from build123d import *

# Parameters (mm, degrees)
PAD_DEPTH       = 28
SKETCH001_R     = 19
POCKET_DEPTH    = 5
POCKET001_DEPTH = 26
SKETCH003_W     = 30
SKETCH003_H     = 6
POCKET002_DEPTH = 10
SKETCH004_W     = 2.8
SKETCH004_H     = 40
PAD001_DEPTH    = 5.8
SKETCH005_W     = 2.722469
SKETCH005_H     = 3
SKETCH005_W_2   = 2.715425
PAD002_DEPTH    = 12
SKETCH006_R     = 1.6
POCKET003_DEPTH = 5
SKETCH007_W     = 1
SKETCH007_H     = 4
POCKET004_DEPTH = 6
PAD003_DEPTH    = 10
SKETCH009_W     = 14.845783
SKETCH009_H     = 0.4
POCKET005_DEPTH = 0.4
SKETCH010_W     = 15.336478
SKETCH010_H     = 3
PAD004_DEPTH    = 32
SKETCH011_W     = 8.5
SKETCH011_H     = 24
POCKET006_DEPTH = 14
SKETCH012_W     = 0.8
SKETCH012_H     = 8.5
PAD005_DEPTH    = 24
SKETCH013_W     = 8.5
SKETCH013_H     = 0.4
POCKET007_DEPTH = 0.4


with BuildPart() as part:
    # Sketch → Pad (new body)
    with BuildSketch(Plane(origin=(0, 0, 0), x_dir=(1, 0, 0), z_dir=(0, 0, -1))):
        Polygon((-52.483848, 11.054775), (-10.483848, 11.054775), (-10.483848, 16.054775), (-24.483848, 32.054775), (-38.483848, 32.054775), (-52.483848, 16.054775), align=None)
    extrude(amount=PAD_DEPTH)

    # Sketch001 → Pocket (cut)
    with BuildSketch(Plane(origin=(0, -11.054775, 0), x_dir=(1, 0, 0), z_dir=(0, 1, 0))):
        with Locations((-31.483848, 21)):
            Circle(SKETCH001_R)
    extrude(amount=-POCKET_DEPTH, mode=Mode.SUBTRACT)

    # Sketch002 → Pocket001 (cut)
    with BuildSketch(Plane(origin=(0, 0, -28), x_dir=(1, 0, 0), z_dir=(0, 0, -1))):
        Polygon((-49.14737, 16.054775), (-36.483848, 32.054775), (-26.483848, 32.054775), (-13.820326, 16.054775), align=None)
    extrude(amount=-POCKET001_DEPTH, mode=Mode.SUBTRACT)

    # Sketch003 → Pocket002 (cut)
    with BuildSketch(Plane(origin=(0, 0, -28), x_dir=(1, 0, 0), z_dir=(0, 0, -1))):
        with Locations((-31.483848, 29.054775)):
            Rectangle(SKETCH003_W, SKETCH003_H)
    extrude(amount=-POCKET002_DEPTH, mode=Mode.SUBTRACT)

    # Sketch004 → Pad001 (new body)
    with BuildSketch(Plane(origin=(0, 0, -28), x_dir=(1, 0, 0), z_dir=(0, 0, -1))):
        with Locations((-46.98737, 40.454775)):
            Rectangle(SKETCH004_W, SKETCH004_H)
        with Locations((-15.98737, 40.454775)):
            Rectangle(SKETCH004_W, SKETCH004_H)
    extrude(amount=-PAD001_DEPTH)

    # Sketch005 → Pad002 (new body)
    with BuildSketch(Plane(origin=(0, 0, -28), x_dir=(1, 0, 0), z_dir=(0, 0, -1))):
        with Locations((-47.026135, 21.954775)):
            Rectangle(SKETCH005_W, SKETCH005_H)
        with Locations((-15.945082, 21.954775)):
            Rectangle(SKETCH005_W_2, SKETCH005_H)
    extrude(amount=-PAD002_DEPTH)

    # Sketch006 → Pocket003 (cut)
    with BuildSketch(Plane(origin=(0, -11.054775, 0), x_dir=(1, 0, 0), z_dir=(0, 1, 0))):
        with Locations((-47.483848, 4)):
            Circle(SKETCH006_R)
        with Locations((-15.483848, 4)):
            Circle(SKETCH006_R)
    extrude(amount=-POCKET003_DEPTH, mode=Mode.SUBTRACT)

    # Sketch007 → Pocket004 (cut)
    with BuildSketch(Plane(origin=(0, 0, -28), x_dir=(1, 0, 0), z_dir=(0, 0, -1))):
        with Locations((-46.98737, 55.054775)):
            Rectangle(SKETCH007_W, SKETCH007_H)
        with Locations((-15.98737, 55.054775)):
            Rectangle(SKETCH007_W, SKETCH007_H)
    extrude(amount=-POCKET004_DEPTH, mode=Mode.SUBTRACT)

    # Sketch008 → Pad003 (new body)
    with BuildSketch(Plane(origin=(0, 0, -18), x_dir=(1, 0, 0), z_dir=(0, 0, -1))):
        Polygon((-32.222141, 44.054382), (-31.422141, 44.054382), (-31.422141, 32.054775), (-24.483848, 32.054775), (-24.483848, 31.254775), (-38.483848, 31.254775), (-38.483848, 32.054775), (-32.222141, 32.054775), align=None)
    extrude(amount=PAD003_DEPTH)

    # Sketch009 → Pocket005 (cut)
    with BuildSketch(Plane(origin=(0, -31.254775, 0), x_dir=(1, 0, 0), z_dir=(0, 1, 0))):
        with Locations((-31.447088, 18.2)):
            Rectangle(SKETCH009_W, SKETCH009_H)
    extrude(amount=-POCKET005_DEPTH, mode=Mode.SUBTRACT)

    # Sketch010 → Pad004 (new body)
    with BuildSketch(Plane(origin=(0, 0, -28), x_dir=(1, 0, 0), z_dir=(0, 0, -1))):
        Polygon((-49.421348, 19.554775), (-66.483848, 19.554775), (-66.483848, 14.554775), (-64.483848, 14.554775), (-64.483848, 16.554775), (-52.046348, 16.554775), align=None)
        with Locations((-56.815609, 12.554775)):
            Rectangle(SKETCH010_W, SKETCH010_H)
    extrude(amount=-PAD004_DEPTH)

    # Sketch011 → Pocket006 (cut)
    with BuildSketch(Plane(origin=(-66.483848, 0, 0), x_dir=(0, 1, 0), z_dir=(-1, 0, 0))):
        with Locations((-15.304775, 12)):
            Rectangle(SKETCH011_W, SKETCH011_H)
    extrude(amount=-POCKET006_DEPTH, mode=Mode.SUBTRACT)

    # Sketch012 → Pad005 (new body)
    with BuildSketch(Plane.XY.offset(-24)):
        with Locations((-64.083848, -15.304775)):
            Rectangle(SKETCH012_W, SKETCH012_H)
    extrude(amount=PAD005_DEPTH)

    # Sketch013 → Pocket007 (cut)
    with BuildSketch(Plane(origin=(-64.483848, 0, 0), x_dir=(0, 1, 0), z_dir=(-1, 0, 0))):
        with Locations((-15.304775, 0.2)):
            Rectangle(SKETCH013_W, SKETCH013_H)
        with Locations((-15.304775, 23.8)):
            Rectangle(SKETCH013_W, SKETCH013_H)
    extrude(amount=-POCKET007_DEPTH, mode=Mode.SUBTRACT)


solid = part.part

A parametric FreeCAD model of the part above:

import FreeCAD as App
import Part
import Sketcher
Q = App.Units.Quantity

doc = App.newDocument("Part")
body = doc.addObject("PartDesign::Body", "Body")

# Sketch on XY plane
sketch1 = body.newObject("Sketcher::SketchObject", "Sketch")
sketch1.AttachmentSupport = (doc.getObject("XY_Plane"), [""])
sketch1.MapMode = "FlatFace"
sketch1.addGeometry(Part.LineSegment(App.Vector(-52, -11, 0), App.Vector(-10, -11, 0)), False)
sketch1.addGeometry(Part.LineSegment(App.Vector(-10, -11, 0), App.Vector(-10, -16, 0)), False)
sketch1.addGeometry(Part.LineSegment(App.Vector(-10, -16, 0), App.Vector(-24, -32, 0)), False)
sketch1.addGeometry(Part.LineSegment(App.Vector(-24, -32, 0), App.Vector(-38, -32, 0)), False)
sketch1.addGeometry(Part.LineSegment(App.Vector(-38, -32, 0), App.Vector(-52, -16, 0)), False)
sketch1.addGeometry(Part.LineSegment(App.Vector(-52, -16, 0), App.Vector(-52, -11, 0)), False)
sketch1.addConstraint(Sketcher.Constraint("Coincident", 0, 2, 1, 1))
sketch1.addConstraint(Sketcher.Constraint("Coincident", 1, 2, 2, 1))
sketch1.addConstraint(Sketcher.Constraint("Coincident", 2, 2, 3, 1))
sketch1.addConstraint(Sketcher.Constraint("Coincident", 3, 2, 4, 1))
sketch1.addConstraint(Sketcher.Constraint("Coincident", 4, 2, 5, 1))
sketch1.addConstraint(Sketcher.Constraint("Coincident", 5, 2, 0, 1))
sketch1.addConstraint(Sketcher.Constraint("Horizontal", 0))
sketch1.addConstraint(Sketcher.Constraint("Vertical", 1))
sketch1.addConstraint(Sketcher.Constraint("Horizontal", 3))
sketch1.addConstraint(Sketcher.Constraint("Vertical", 5))
sketch1.addConstraint(Sketcher.Constraint("Horizontal", 1, 2, 4, 2))
sketch1.addConstraint(Sketcher.Constraint("Equal", 2, 4))
sketch1.addConstraint(Sketcher.Constraint("DistanceX", 0, 1, 0, 2, Q("42 mm")))
sketch1.addConstraint(Sketcher.Constraint("DistanceX", 3, 2, 3, 1, Q("14 mm")))
sketch1.addConstraint(Sketcher.Constraint("DistanceY", 1, 2, 1, 1, Q("5 mm")))
sketch1.addConstraint(Sketcher.Constraint("DistanceY", 2, 2, 1, 2, Q("16 mm")))
sketch1.addConstraint(Sketcher.Constraint("DistanceX", 3, 2, -1, 1, Q("38.483848 mm")))
sketch1.addConstraint(Sketcher.Constraint("DistanceY", 0, 2, -1, 1, Q("11.054775 mm")))
pad1 = body.newObject("PartDesign::Pad", "Pad")
pad1.Profile = sketch1
pad1.Length = 28
pad1.Reversed = True

# Sketch on XZ plane
sketch2 = body.newObject("Sketcher::SketchObject", "Sketch001")
sketch2.AttachmentSupport = (doc.getObject("XZ_Plane"), [""])
sketch2.MapMode = "FlatFace"
sketch2.AttachmentOffset = App.Placement(App.Vector(0, 0, 11.054775), App.Rotation())
sketch2.addGeometry(Part.Circle(App.Vector(-31, -21, 0), App.Vector(0, 0, 1), 19), False)
sketch2.addConstraint(Sketcher.Constraint("Diameter", 0, Q("38 mm")))
sketch2.addConstraint(Sketcher.Constraint("DistanceY", 0, 3, -1, 1, Q("21 mm")))
sketch2.addConstraint(Sketcher.Constraint("DistanceX", 0, 3, -1, 1, Q("31.483848 mm")))
pocket1 = body.newObject("PartDesign::Pocket", "Pocket")
pocket1.Profile = sketch2
pocket1.Length = 5
pocket1.Reversed = True

# Sketch on XY plane
sketch3 = body.newObject("Sketcher::SketchObject", "Sketch002")
sketch3.AttachmentSupport = (doc.getObject("XY_Plane"), [""])
sketch3.MapMode = "FlatFace"
sketch3.AttachmentOffset = App.Placement(App.Vector(0, 0, -28), App.Rotation())
sketch3.addGeometry(Part.LineSegment(App.Vector(-36, -32, 0), App.Vector(-49, -16, 0)), False)
sketch3.addGeometry(Part.LineSegment(App.Vector(-49, -16, 0), App.Vector(-14, -16, 0)), False)
sketch3.addGeometry(Part.LineSegment(App.Vector(-14, -16, 0), App.Vector(-26, -32, 0)), False)
sketch3.addGeometry(Part.LineSegment(App.Vector(-26, -32, 0), App.Vector(-36, -32, 0)), False)
sketch3.addConstraint(Sketcher.Constraint("Coincident", 0, 2, 1, 1))
sketch3.addConstraint(Sketcher.Constraint("Coincident", 1, 2, 2, 1))
sketch3.addConstraint(Sketcher.Constraint("Coincident", 2, 2, 3, 1))
sketch3.addConstraint(Sketcher.Constraint("Coincident", 3, 2, 0, 1))
sketch3.addConstraint(Sketcher.Constraint("Horizontal", 1))
sketch3.addConstraint(Sketcher.Constraint("Horizontal", 3))
sketch3.addConstraint(Sketcher.Constraint("Equal", 0, 2))
sketch3.addConstraint(Sketcher.Constraint("DistanceX", 3, 2, 3, 1, Q("10 mm")))
sketch3.addConstraint(Sketcher.Constraint("DistanceY", 2, 2, 1, 2, Q("16 mm")))
sketch3.addConstraint(Sketcher.Constraint("Distance", 0, Q("20.405019 mm")))
sketch3.addConstraint(Sketcher.Constraint("DistanceX", 0, 2, -1, 1, Q("49.14737 mm")))
sketch3.addConstraint(Sketcher.Constraint("DistanceY", 0, 2, -1, 1, Q("16.054775 mm")))
pocket2 = body.newObject("PartDesign::Pocket", "Pocket001")
pocket2.Profile = sketch3
pocket2.Length = 26
pocket2.Reversed = True

# Sketch on XY plane
sketch4 = body.newObject("Sketcher::SketchObject", "Sketch003")
sketch4.AttachmentSupport = (doc.getObject("XY_Plane"), [""])
sketch4.MapMode = "FlatFace"
sketch4.AttachmentOffset = App.Placement(App.Vector(0, 0, -28), App.Rotation())
sketch4.addGeometry(Part.LineSegment(App.Vector(-46, -32, 0), App.Vector(-46, -26, 0)), False)
sketch4.addGeometry(Part.LineSegment(App.Vector(-46, -26, 0), App.Vector(-16, -26, 0)), False)
sketch4.addGeometry(Part.LineSegment(App.Vector(-16, -26, 0), App.Vector(-16, -32, 0)), False)
sketch4.addGeometry(Part.LineSegment(App.Vector(-16, -32, 0), App.Vector(-46, -32, 0)), False)
sketch4.addConstraint(Sketcher.Constraint("Coincident", 0, 2, 1, 1))
sketch4.addConstraint(Sketcher.Constraint("Coincident", 1, 2, 2, 1))
sketch4.addConstraint(Sketcher.Constraint("Coincident", 2, 2, 3, 1))
sketch4.addConstraint(Sketcher.Constraint("Coincident", 3, 2, 0, 1))
sketch4.addConstraint(Sketcher.Constraint("Vertical", 0))
sketch4.addConstraint(Sketcher.Constraint("Horizontal", 1))
sketch4.addConstraint(Sketcher.Constraint("Vertical", 2))
sketch4.addConstraint(Sketcher.Constraint("Horizontal", 3))
sketch4.addConstraint(Sketcher.Constraint("DistanceX", 1, 1, 1, 2, Q("30 mm")))
sketch4.addConstraint(Sketcher.Constraint("DistanceY", 0, 1, 0, 2, Q("6 mm")))
sketch4.addConstraint(Sketcher.Constraint("DistanceX", 0, 2, -1, 1, Q("46.483848 mm")))
sketch4.addConstraint(Sketcher.Constraint("DistanceY", 0, 2, -1, 1, Q("26.054775 mm")))
pocket3 = body.newObject("PartDesign::Pocket", "Pocket002")
pocket3.Profile = sketch4
pocket3.Length = 10
pocket3.Reversed = True

# Sketch on XY plane
sketch5 = body.newObject("Sketcher::SketchObject", "Sketch004")
sketch5.AttachmentSupport = (doc.getObject("XY_Plane"), [""])
sketch5.MapMode = "FlatFace"
sketch5.AttachmentOffset = App.Placement(App.Vector(0, 0, -28), App.Rotation())
sketch5.addGeometry(Part.LineSegment(App.Vector(-48.4, -60.5, 0), App.Vector(-48.4, -20.5, 0)), False)
sketch5.addGeometry(Part.LineSegment(App.Vector(-48.4, -20.5, 0), App.Vector(-45.6, -20.5, 0)), False)
sketch5.addGeometry(Part.LineSegment(App.Vector(-45.6, -20.5, 0), App.Vector(-45.6, -60.5, 0)), False)
sketch5.addGeometry(Part.LineSegment(App.Vector(-45.6, -60.5, 0), App.Vector(-48.4, -60.5, 0)), False)
sketch5.addGeometry(Part.LineSegment(App.Vector(-17.4, -60.5, 0), App.Vector(-17.4, -20.5, 0)), False)
sketch5.addGeometry(Part.LineSegment(App.Vector(-17.4, -20.5, 0), App.Vector(-14.6, -20.5, 0)), False)
sketch5.addGeometry(Part.LineSegment(App.Vector(-14.6, -20.5, 0), App.Vector(-14.6, -60.5, 0)), False)
sketch5.addGeometry(Part.LineSegment(App.Vector(-14.6, -60.5, 0), App.Vector(-17.4, -60.5, 0)), False)
sketch5.addConstraint(Sketcher.Constraint("Coincident", 0, 2, 1, 1))
sketch5.addConstraint(Sketcher.Constraint("Coincident", 1, 2, 2, 1))
sketch5.addConstraint(Sketcher.Constraint("Coincident", 2, 2, 3, 1))
sketch5.addConstraint(Sketcher.Constraint("Coincident", 3, 2, 0, 1))
sketch5.addConstraint(Sketcher.Constraint("Coincident", 4, 2, 5, 1))
sketch5.addConstraint(Sketcher.Constraint("Coincident", 5, 2, 6, 1))
sketch5.addConstraint(Sketcher.Constraint("Coincident", 6, 2, 7, 1))
sketch5.addConstraint(Sketcher.Constraint("Coincident", 7, 2, 4, 1))
sketch5.addConstraint(Sketcher.Constraint("Vertical", 0))
sketch5.addConstraint(Sketcher.Constraint("Horizontal", 1))
sketch5.addConstraint(Sketcher.Constraint("Vertical", 2))
sketch5.addConstraint(Sketcher.Constraint("Horizontal", 3))
sketch5.addConstraint(Sketcher.Constraint("Vertical", 4))
sketch5.addConstraint(Sketcher.Constraint("Horizontal", 5))
sketch5.addConstraint(Sketcher.Constraint("Vertical", 6))
sketch5.addConstraint(Sketcher.Constraint("Horizontal", 7))
sketch5.addConstraint(Sketcher.Constraint("Horizontal", 1, 2, 4, 2))
sketch5.addConstraint(Sketcher.Constraint("Horizontal", 3, 2, 6, 2))
sketch5.addConstraint(Sketcher.Constraint("Equal", 3, 5))
sketch5.addConstraint(Sketcher.Constraint("DistanceY", 0, 1, 0, 2, Q("40 mm")))
sketch5.addConstraint(Sketcher.Constraint("DistanceX", 1, 1, 1, 2, Q("2.8 mm")))
sketch5.addConstraint(Sketcher.Constraint("DistanceX", 0, 2, 4, 2, Q("31 mm")))
sketch5.addConstraint(Sketcher.Constraint("DistanceX", 0, 2, -1, 1, Q("48.38737 mm")))
sketch5.addConstraint(Sketcher.Constraint("DistanceY", 0, 2, -1, 1, Q("20.454775 mm")))
pad2 = body.newObject("PartDesign::Pad", "Pad001")
pad2.Profile = sketch5
pad2.Length = 5.8

# Sketch on XY plane
sketch6 = body.newObject("Sketcher::SketchObject", "Sketch005")
sketch6.AttachmentSupport = (doc.getObject("XY_Plane"), [""])
sketch6.MapMode = "FlatFace"
sketch6.AttachmentOffset = App.Placement(App.Vector(0, 0, -28), App.Rotation())
sketch6.addGeometry(Part.LineSegment(App.Vector(-48.4, -23.5, 0), App.Vector(-48.4, -20.5, 0)), False)
sketch6.addGeometry(Part.LineSegment(App.Vector(-48.4, -20.5, 0), App.Vector(-45.7, -20.5, 0)), False)
sketch6.addGeometry(Part.LineSegment(App.Vector(-45.7, -20.5, 0), App.Vector(-45.7, -23.5, 0)), False)
sketch6.addGeometry(Part.LineSegment(App.Vector(-45.7, -23.5, 0), App.Vector(-48.4, -23.5, 0)), False)
sketch6.addGeometry(Part.LineSegment(App.Vector(-17.3, -23.5, 0), App.Vector(-17.3, -20.5, 0)), False)
sketch6.addGeometry(Part.LineSegment(App.Vector(-17.3, -20.5, 0), App.Vector(-14.6, -20.5, 0)), False)
sketch6.addGeometry(Part.LineSegment(App.Vector(-14.6, -20.5, 0), App.Vector(-14.6, -23.5, 0)), False)
sketch6.addGeometry(Part.LineSegment(App.Vector(-14.6, -23.5, 0), App.Vector(-17.3, -23.5, 0)), False)
sketch6.addConstraint(Sketcher.Constraint("Coincident", 0, 2, 1, 1))
sketch6.addConstraint(Sketcher.Constraint("Coincident", 1, 2, 2, 1))
sketch6.addConstraint(Sketcher.Constraint("Coincident", 2, 2, 3, 1))
sketch6.addConstraint(Sketcher.Constraint("Coincident", 3, 2, 0, 1))
sketch6.addConstraint(Sketcher.Constraint("Coincident", 4, 2, 5, 1))
sketch6.addConstraint(Sketcher.Constraint("Coincident", 5, 2, 6, 1))
sketch6.addConstraint(Sketcher.Constraint("Coincident", 6, 2, 7, 1))
sketch6.addConstraint(Sketcher.Constraint("Coincident", 7, 2, 4, 1))
sketch6.addConstraint(Sketcher.Constraint("Vertical", 0))
sketch6.addConstraint(Sketcher.Constraint("Horizontal", 1))
sketch6.addConstraint(Sketcher.Constraint("Vertical", 2))
sketch6.addConstraint(Sketcher.Constraint("Horizontal", 3))
sketch6.addConstraint(Sketcher.Constraint("Vertical", 4))
sketch6.addConstraint(Sketcher.Constraint("Horizontal", 5))
sketch6.addConstraint(Sketcher.Constraint("Vertical", 6))
sketch6.addConstraint(Sketcher.Constraint("Horizontal", 7))
sketch6.addConstraint(Sketcher.Constraint("Horizontal", 1, 2, 4, 2))
sketch6.addConstraint(Sketcher.Constraint("Horizontal", 3, 2, 6, 2))
sketch6.addConstraint(Sketcher.Constraint("DistanceY", 0, 1, 0, 2, Q("3 mm")))
sketch6.addConstraint(Sketcher.Constraint("DistanceX", 0, 2, 5, 2, Q("33.8 mm")))
sketch6.addConstraint(Sketcher.Constraint("DistanceX", 1, 1, 1, 2, Q("2.722469 mm")))
sketch6.addConstraint(Sketcher.Constraint("DistanceX", 1, 2, -1, 1, Q("45.664901 mm")))
sketch6.addConstraint(Sketcher.Constraint("DistanceX", 5, 1, 5, 2, Q("2.715425 mm")))
sketch6.addConstraint(Sketcher.Constraint("DistanceY", 0, 2, -1, 1, Q("20.454775 mm")))
pad3 = body.newObject("PartDesign::Pad", "Pad002")
pad3.Profile = sketch6
pad3.Length = 12

# Sketch on XZ plane
sketch7 = body.newObject("Sketcher::SketchObject", "Sketch006")
sketch7.AttachmentSupport = (doc.getObject("XZ_Plane"), [""])
sketch7.MapMode = "FlatFace"
sketch7.AttachmentOffset = App.Placement(App.Vector(0, 0, 11.054775), App.Rotation())
sketch7.addGeometry(Part.Circle(App.Vector(-47.5, -4, 0), App.Vector(0, 0, 1), 1.6), False)
sketch7.addGeometry(Part.Circle(App.Vector(-15.5, -4, 0), App.Vector(0, 0, 1), 1.6), False)
sketch7.addConstraint(Sketcher.Constraint("Equal", 0, 1))
sketch7.addConstraint(Sketcher.Constraint("Horizontal", 0, 3, 1, 3))
sketch7.addConstraint(Sketcher.Constraint("Diameter", 0, Q("3.2 mm")))
sketch7.addConstraint(Sketcher.Constraint("DistanceY", 0, 3, -1, 1, Q("4 mm")))
sketch7.addConstraint(Sketcher.Constraint("DistanceX", 0, 3, 1, 3, Q("32 mm")))
sketch7.addConstraint(Sketcher.Constraint("DistanceX", 0, 3, -1, 1, Q("47.483848 mm")))
pocket4 = body.newObject("PartDesign::Pocket", "Pocket003")
pocket4.Profile = sketch7
pocket4.Length = 5
pocket4.Reversed = True

# Sketch on XY plane
sketch8 = body.newObject("Sketcher::SketchObject", "Sketch007")
sketch8.AttachmentSupport = (doc.getObject("XY_Plane"), [""])
sketch8.MapMode = "FlatFace"
sketch8.AttachmentOffset = App.Placement(App.Vector(0, 0, -28), App.Rotation())
sketch8.addGeometry(Part.LineSegment(App.Vector(-47.5, -57.1, 0), App.Vector(-47.5, -53.1, 0)), False)
sketch8.addGeometry(Part.LineSegment(App.Vector(-47.5, -53.1, 0), App.Vector(-46.5, -53.1, 0)), False)
sketch8.addGeometry(Part.LineSegment(App.Vector(-46.5, -53.1, 0), App.Vector(-46.5, -57.1, 0)), False)
sketch8.addGeometry(Part.LineSegment(App.Vector(-46.5, -57.1, 0), App.Vector(-47.5, -57.1, 0)), False)
sketch8.addGeometry(Part.LineSegment(App.Vector(-16.5, -57.1, 0), App.Vector(-16.5, -53.1, 0)), False)
sketch8.addGeometry(Part.LineSegment(App.Vector(-16.5, -53.1, 0), App.Vector(-15.5, -53.1, 0)), False)
sketch8.addGeometry(Part.LineSegment(App.Vector(-15.5, -53.1, 0), App.Vector(-15.5, -57.1, 0)), False)
sketch8.addGeometry(Part.LineSegment(App.Vector(-15.5, -57.1, 0), App.Vector(-16.5, -57.1, 0)), False)
sketch8.addConstraint(Sketcher.Constraint("Coincident", 0, 2, 1, 1))
sketch8.addConstraint(Sketcher.Constraint("Coincident", 1, 2, 2, 1))
sketch8.addConstraint(Sketcher.Constraint("Coincident", 2, 2, 3, 1))
sketch8.addConstraint(Sketcher.Constraint("Coincident", 3, 2, 0, 1))
sketch8.addConstraint(Sketcher.Constraint("Coincident", 4, 2, 5, 1))
sketch8.addConstraint(Sketcher.Constraint("Coincident", 5, 2, 6, 1))
sketch8.addConstraint(Sketcher.Constraint("Coincident", 6, 2, 7, 1))
sketch8.addConstraint(Sketcher.Constraint("Coincident", 7, 2, 4, 1))
sketch8.addConstraint(Sketcher.Constraint("Vertical", 0))
sketch8.addConstraint(Sketcher.Constraint("Horizontal", 1))
sketch8.addConstraint(Sketcher.Constraint("Vertical", 2))
sketch8.addConstraint(Sketcher.Constraint("Horizontal", 3))
sketch8.addConstraint(Sketcher.Constraint("Vertical", 4))
sketch8.addConstraint(Sketcher.Constraint("Horizontal", 5))
sketch8.addConstraint(Sketcher.Constraint("Vertical", 6))
sketch8.addConstraint(Sketcher.Constraint("Horizontal", 7))
sketch8.addConstraint(Sketcher.Constraint("Horizontal", 1, 2, 4, 2))
sketch8.addConstraint(Sketcher.Constraint("Horizontal", 3, 2, 6, 2))
sketch8.addConstraint(Sketcher.Constraint("Equal", 3, 5))
sketch8.addConstraint(Sketcher.Constraint("DistanceX", 1, 1, 1, 2, Q("1 mm")))
sketch8.addConstraint(Sketcher.Constraint("DistanceY", 0, 1, 0, 2, Q("4 mm")))
sketch8.addConstraint(Sketcher.Constraint("DistanceX", 1, 2, 4, 2, Q("30 mm")))
sketch8.addConstraint(Sketcher.Constraint("DistanceX", 0, 2, -1, 1, Q("47.48737 mm")))
sketch8.addConstraint(Sketcher.Constraint("DistanceY", 0, 2, -1, 1, Q("53.054775 mm")))
pocket5 = body.newObject("PartDesign::Pocket", "Pocket004")
pocket5.Profile = sketch8
pocket5.Length = 6
pocket5.Reversed = True

# Sketch on XY plane
sketch9 = body.newObject("Sketcher::SketchObject", "Sketch008")
sketch9.AttachmentSupport = (doc.getObject("XY_Plane"), [""])
sketch9.MapMode = "FlatFace"
sketch9.AttachmentOffset = App.Placement(App.Vector(0, 0, -18), App.Rotation())
sketch9.addGeometry(Part.LineSegment(App.Vector(-31.4, -44.1, 0), App.Vector(-32.2, -44.1, 0)), False)
sketch9.addGeometry(Part.LineSegment(App.Vector(-32.2, -44.1, 0), App.Vector(-32.2, -32.1, 0)), False)
sketch9.addGeometry(Part.LineSegment(App.Vector(-32.2, -32.1, 0), App.Vector(-38.5, -32.1, 0)), False)
sketch9.addGeometry(Part.LineSegment(App.Vector(-38.5, -32.1, 0), App.Vector(-38.5, -31.3, 0)), False)
sketch9.addGeometry(Part.LineSegment(App.Vector(-38.5, -31.3, 0), App.Vector(-24.5, -31.3, 0)), False)
sketch9.addGeometry(Part.LineSegment(App.Vector(-24.5, -31.3, 0), App.Vector(-24.5, -32.1, 0)), False)
sketch9.addGeometry(Part.LineSegment(App.Vector(-24.5, -32.1, 0), App.Vector(-31.4, -32.1, 0)), False)
sketch9.addGeometry(Part.LineSegment(App.Vector(-31.4, -32.1, 0), App.Vector(-31.4, -44.1, 0)), False)
sketch9.addConstraint(Sketcher.Constraint("Coincident", 0, 2, 1, 1))
sketch9.addConstraint(Sketcher.Constraint("Coincident", 1, 2, 2, 1))
sketch9.addConstraint(Sketcher.Constraint("Coincident", 2, 2, 3, 1))
sketch9.addConstraint(Sketcher.Constraint("Coincident", 3, 2, 4, 1))
sketch9.addConstraint(Sketcher.Constraint("Coincident", 4, 2, 5, 1))
sketch9.addConstraint(Sketcher.Constraint("Coincident", 5, 2, 6, 1))
sketch9.addConstraint(Sketcher.Constraint("Coincident", 6, 2, 7, 1))
sketch9.addConstraint(Sketcher.Constraint("Coincident", 7, 2, 0, 1))
sketch9.addConstraint(Sketcher.Constraint("Horizontal", 0))
sketch9.addConstraint(Sketcher.Constraint("Vertical", 1))
sketch9.addConstraint(Sketcher.Constraint("Horizontal", 2))
sketch9.addConstraint(Sketcher.Constraint("Vertical", 3))
sketch9.addConstraint(Sketcher.Constraint("Horizontal", 4))
sketch9.addConstraint(Sketcher.Constraint("Vertical", 5))
sketch9.addConstraint(Sketcher.Constraint("Horizontal", 6))
sketch9.addConstraint(Sketcher.Constraint("Vertical", 7))
sketch9.addConstraint(Sketcher.Constraint("Horizontal", 2, 2, 5, 2))
sketch9.addConstraint(Sketcher.Constraint("Equal", 0, 3))
sketch9.addConstraint(Sketcher.Constraint("DistanceX", 4, 1, 4, 2, Q("14 mm")))
sketch9.addConstraint(Sketcher.Constraint("DistanceX", 0, 2, 0, 1, Q("0.8 mm")))
sketch9.addConstraint(Sketcher.Constraint("DistanceX", 2, 2, 2, 1, Q("6.261707 mm")))
sketch9.addConstraint(Sketcher.Constraint("DistanceY", 1, 1, 1, 2, Q("11.999607 mm")))
sketch9.addConstraint(Sketcher.Constraint("DistanceX", 0, 2, -1, 1, Q("32.222141 mm")))
sketch9.addConstraint(Sketcher.Constraint("DistanceY", 0, 2, -1, 1, Q("44.054382 mm")))
pad4 = body.newObject("PartDesign::Pad", "Pad003")
pad4.Profile = sketch9
pad4.Length = 10
pad4.Reversed = True

# Sketch on XZ plane
sketch10 = body.newObject("Sketcher::SketchObject", "Sketch009")
sketch10.AttachmentSupport = (doc.getObject("XZ_Plane"), [""])
sketch10.MapMode = "FlatFace"
sketch10.AttachmentOffset = App.Placement(App.Vector(0, 0, 31.254775), App.Rotation())
sketch10.addGeometry(Part.LineSegment(App.Vector(-38.87, -18.4, 0), App.Vector(-38.87, -18, 0)), False)
sketch10.addGeometry(Part.LineSegment(App.Vector(-38.87, -18, 0), App.Vector(-24.02, -18, 0)), False)
sketch10.addGeometry(Part.LineSegment(App.Vector(-24.02, -18, 0), App.Vector(-24.02, -18.4, 0)), False)
sketch10.addGeometry(Part.LineSegment(App.Vector(-24.02, -18.4, 0), App.Vector(-38.87, -18.4, 0)), False)
sketch10.addConstraint(Sketcher.Constraint("Coincident", 0, 2, 1, 1))
sketch10.addConstraint(Sketcher.Constraint("Coincident", 1, 2, 2, 1))
sketch10.addConstraint(Sketcher.Constraint("Coincident", 2, 2, 3, 1))
sketch10.addConstraint(Sketcher.Constraint("Coincident", 3, 2, 0, 1))
sketch10.addConstraint(Sketcher.Constraint("Vertical", 0))
sketch10.addConstraint(Sketcher.Constraint("Horizontal", 1))
sketch10.addConstraint(Sketcher.Constraint("Vertical", 2))
sketch10.addConstraint(Sketcher.Constraint("Horizontal", 3))
sketch10.addConstraint(Sketcher.Constraint("DistanceY", 0, 1, 0, 2, Q("0.4 mm")))
sketch10.addConstraint(Sketcher.Constraint("DistanceY", 0, 2, -1, 1, Q("18 mm")))
sketch10.addConstraint(Sketcher.Constraint("DistanceX", 1, 1, 1, 2, Q("14.845783 mm")))
sketch10.addConstraint(Sketcher.Constraint("DistanceX", 0, 2, -1, 1, Q("38.869979 mm")))
pocket6 = body.newObject("PartDesign::Pocket", "Pocket005")
pocket6.Profile = sketch10
pocket6.Length = 0.4
pocket6.Reversed = True

# Sketch on XY plane
sketch11 = body.newObject("Sketcher::SketchObject", "Sketch010")
sketch11.AttachmentSupport = (doc.getObject("XY_Plane"), [""])
sketch11.MapMode = "FlatFace"
sketch11.AttachmentOffset = App.Placement(App.Vector(0, 0, -28), App.Rotation())
sketch11.addGeometry(Part.LineSegment(App.Vector(-49.4, -19.6, 0), App.Vector(-66.5, -19.6, 0)), False)
sketch11.addGeometry(Part.LineSegment(App.Vector(-66.5, -19.6, 0), App.Vector(-66.5, -14.6, 0)), False)
sketch11.addGeometry(Part.LineSegment(App.Vector(-66.5, -14.6, 0), App.Vector(-64.5, -14.6, 0)), False)
sketch11.addGeometry(Part.LineSegment(App.Vector(-64.5, -14.6, 0), App.Vector(-64.5, -16.6, 0)), False)
sketch11.addGeometry(Part.LineSegment(App.Vector(-64.5, -16.6, 0), App.Vector(-52, -16.6, 0)), False)
sketch11.addGeometry(Part.LineSegment(App.Vector(-52, -16.6, 0), App.Vector(-49.4, -19.6, 0)), False)
sketch11.addGeometry(Part.LineSegment(App.Vector(-64.5, -14.1, 0), App.Vector(-64.5, -11.1, 0)), False)
sketch11.addGeometry(Part.LineSegment(App.Vector(-64.5, -11.1, 0), App.Vector(-49.1, -11.1, 0)), False)
sketch11.addGeometry(Part.LineSegment(App.Vector(-49.1, -11.1, 0), App.Vector(-49.1, -14.1, 0)), False)
sketch11.addGeometry(Part.LineSegment(App.Vector(-49.1, -14.1, 0), App.Vector(-64.5, -14.1, 0)), False)
sketch11.addConstraint(Sketcher.Constraint("Coincident", 0, 2, 1, 1))
sketch11.addConstraint(Sketcher.Constraint("Coincident", 1, 2, 2, 1))
sketch11.addConstraint(Sketcher.Constraint("Coincident", 2, 2, 3, 1))
sketch11.addConstraint(Sketcher.Constraint("Coincident", 3, 2, 4, 1))
sketch11.addConstraint(Sketcher.Constraint("Coincident", 4, 2, 5, 1))
sketch11.addConstraint(Sketcher.Constraint("Coincident", 5, 2, 0, 1))
sketch11.addConstraint(Sketcher.Constraint("Coincident", 6, 2, 7, 1))
sketch11.addConstraint(Sketcher.Constraint("Coincident", 7, 2, 8, 1))
sketch11.addConstraint(Sketcher.Constraint("Coincident", 8, 2, 9, 1))
sketch11.addConstraint(Sketcher.Constraint("Coincident", 9, 2, 6, 1))
sketch11.addConstraint(Sketcher.Constraint("Horizontal", 0))
sketch11.addConstraint(Sketcher.Constraint("Vertical", 1))
sketch11.addConstraint(Sketcher.Constraint("Horizontal", 2))
sketch11.addConstraint(Sketcher.Constraint("Vertical", 3))
sketch11.addConstraint(Sketcher.Constraint("Horizontal", 4))
sketch11.addConstraint(Sketcher.Constraint("Vertical", 6))
sketch11.addConstraint(Sketcher.Constraint("Horizontal", 7))
sketch11.addConstraint(Sketcher.Constraint("Vertical", 8))
sketch11.addConstraint(Sketcher.Constraint("Horizontal", 9))
sketch11.addConstraint(Sketcher.Constraint("Vertical", 3, 2, 6, 2))
sketch11.addConstraint(Sketcher.Constraint("Equal", 2, 3))
sketch11.addConstraint(Sketcher.Constraint("DistanceX", 2, 1, 2, 2, Q("2 mm")))
sketch11.addConstraint(Sketcher.Constraint("DistanceY", 1, 1, 1, 2, Q("5 mm")))
sketch11.addConstraint(Sketcher.Constraint("DistanceY", 6, 1, 6, 2, Q("3 mm")))
sketch11.addConstraint(Sketcher.Constraint("DistanceY", 2, 2, 6, 2, Q("3.5 mm")))
sketch11.addConstraint(Sketcher.Constraint("DistanceX", 0, 2, 0, 1, Q("17.0625 mm")))
sketch11.addConstraint(Sketcher.Constraint("DistanceX", 4, 1, 4, 2, Q("12.4375 mm")))
sketch11.addConstraint(Sketcher.Constraint("DistanceX", 7, 1, 7, 2, Q("15.336478 mm")))
sketch11.addConstraint(Sketcher.Constraint("DistanceX", 4, 2, -1, 1, Q("52.046348 mm")))
sketch11.addConstraint(Sketcher.Constraint("DistanceY", 0, 2, -1, 1, Q("19.554775 mm")))
pad5 = body.newObject("PartDesign::Pad", "Pad004")
pad5.Profile = sketch11
pad5.Length = 32

# Sketch on YZ plane
sketch12 = body.newObject("Sketcher::SketchObject", "Sketch011")
sketch12.AttachmentSupport = (doc.getObject("YZ_Plane"), [""])
sketch12.MapMode = "FlatFace"
sketch12.AttachmentOffset = App.Placement(App.Vector(0, 0, -66.483848), App.Rotation())
sketch12.addGeometry(Part.LineSegment(App.Vector(-20, -24, 0), App.Vector(-20, 0, 0)), False)
sketch12.addGeometry(Part.LineSegment(App.Vector(-20, 0, 0), App.Vector(-11, 0, 0)), False)
sketch12.addGeometry(Part.LineSegment(App.Vector(-11, 0, 0), App.Vector(-11, -24, 0)), False)
sketch12.addGeometry(Part.LineSegment(App.Vector(-11, -24, 0), App.Vector(-20, -24, 0)), False)
sketch12.addConstraint(Sketcher.Constraint("Coincident", 0, 2, 1, 1))
sketch12.addConstraint(Sketcher.Constraint("Coincident", 1, 2, 2, 1))
sketch12.addConstraint(Sketcher.Constraint("Coincident", 2, 2, 3, 1))
sketch12.addConstraint(Sketcher.Constraint("Coincident", 3, 2, 0, 1))
sketch12.addConstraint(Sketcher.Constraint("Vertical", 0))
sketch12.addConstraint(Sketcher.Constraint("Horizontal", 1))
sketch12.addConstraint(Sketcher.Constraint("Vertical", 2))
sketch12.addConstraint(Sketcher.Constraint("Horizontal", 3))
sketch12.addConstraint(Sketcher.Constraint("PointOnObject", 0, 2, -1))
sketch12.addConstraint(Sketcher.Constraint("DistanceY", 0, 1, 0, 2, Q("24 mm")))
sketch12.addConstraint(Sketcher.Constraint("DistanceX", 1, 1, 1, 2, Q("8.5 mm")))
sketch12.addConstraint(Sketcher.Constraint("DistanceX", 0, 2, -1, 1, Q("19.554775 mm")))
pocket7 = body.newObject("PartDesign::Pocket", "Pocket006")
pocket7.Profile = sketch12
pocket7.Length = 14
pocket7.Reversed = True

# Sketch on XY plane
sketch13 = body.newObject("Sketcher::SketchObject", "Sketch012")
sketch13.AttachmentSupport = (doc.getObject("XY_Plane"), [""])
sketch13.MapMode = "FlatFace"
sketch13.AttachmentOffset = App.Placement(App.Vector(0, 0, -24), App.Rotation())
sketch13.addGeometry(Part.LineSegment(App.Vector(-64.5, -11.1, 0), App.Vector(-64.5, -19.6, 0)), False)
sketch13.addGeometry(Part.LineSegment(App.Vector(-64.5, -19.6, 0), App.Vector(-63.7, -19.6, 0)), False)
sketch13.addGeometry(Part.LineSegment(App.Vector(-63.7, -19.6, 0), App.Vector(-63.7, -11.1, 0)), False)
sketch13.addGeometry(Part.LineSegment(App.Vector(-63.7, -11.1, 0), App.Vector(-64.5, -11.1, 0)), False)
sketch13.addConstraint(Sketcher.Constraint("Coincident", 0, 2, 1, 1))
sketch13.addConstraint(Sketcher.Constraint("Coincident", 1, 2, 2, 1))
sketch13.addConstraint(Sketcher.Constraint("Coincident", 2, 2, 3, 1))
sketch13.addConstraint(Sketcher.Constraint("Coincident", 3, 2, 0, 1))
sketch13.addConstraint(Sketcher.Constraint("Vertical", 0))
sketch13.addConstraint(Sketcher.Constraint("Horizontal", 1))
sketch13.addConstraint(Sketcher.Constraint("Vertical", 2))
sketch13.addConstraint(Sketcher.Constraint("Horizontal", 3))
sketch13.addConstraint(Sketcher.Constraint("DistanceX", 1, 1, 1, 2, Q("0.8 mm")))
sketch13.addConstraint(Sketcher.Constraint("DistanceY", 0, 2, 0, 1, Q("8.5 mm")))
sketch13.addConstraint(Sketcher.Constraint("DistanceX", 0, 2, -1, 1, Q("64.483848 mm")))
sketch13.addConstraint(Sketcher.Constraint("DistanceY", 0, 2, -1, 1, Q("19.554775 mm")))
pad6 = body.newObject("PartDesign::Pad", "Pad005")
pad6.Profile = sketch13
pad6.Length = 24

# Sketch on YZ plane
sketch14 = body.newObject("Sketcher::SketchObject", "Sketch013")
sketch14.AttachmentSupport = (doc.getObject("YZ_Plane"), [""])
sketch14.MapMode = "FlatFace"
sketch14.AttachmentOffset = App.Placement(App.Vector(0, 0, -64.483848), App.Rotation())
sketch14.addGeometry(Part.LineSegment(App.Vector(-19.55, -0.4, 0), App.Vector(-19.55, 0, 0)), False)
sketch14.addGeometry(Part.LineSegment(App.Vector(-19.55, 0, 0), App.Vector(-11.05, 0, 0)), False)
sketch14.addGeometry(Part.LineSegment(App.Vector(-11.05, 0, 0), App.Vector(-11.05, -0.4, 0)), False)
sketch14.addGeometry(Part.LineSegment(App.Vector(-11.05, -0.4, 0), App.Vector(-19.55, -0.4, 0)), False)
sketch14.addGeometry(Part.LineSegment(App.Vector(-19.55, -24, 0), App.Vector(-19.55, -23.6, 0)), False)
sketch14.addGeometry(Part.LineSegment(App.Vector(-19.55, -23.6, 0), App.Vector(-11.05, -23.6, 0)), False)
sketch14.addGeometry(Part.LineSegment(App.Vector(-11.05, -23.6, 0), App.Vector(-11.05, -24, 0)), False)
sketch14.addGeometry(Part.LineSegment(App.Vector(-11.05, -24, 0), App.Vector(-19.55, -24, 0)), False)
sketch14.addConstraint(Sketcher.Constraint("Coincident", 0, 2, 1, 1))
sketch14.addConstraint(Sketcher.Constraint("Coincident", 1, 2, 2, 1))
sketch14.addConstraint(Sketcher.Constraint("Coincident", 2, 2, 3, 1))
sketch14.addConstraint(Sketcher.Constraint("Coincident", 3, 2, 0, 1))
sketch14.addConstraint(Sketcher.Constraint("Coincident", 4, 2, 5, 1))
sketch14.addConstraint(Sketcher.Constraint("Coincident", 5, 2, 6, 1))
sketch14.addConstraint(Sketcher.Constraint("Coincident", 6, 2, 7, 1))
sketch14.addConstraint(Sketcher.Constraint("Coincident", 7, 2, 4, 1))
sketch14.addConstraint(Sketcher.Constraint("Vertical", 0))
sketch14.addConstraint(Sketcher.Constraint("Horizontal", 1))
sketch14.addConstraint(Sketcher.Constraint("Vertical", 2))
sketch14.addConstraint(Sketcher.Constraint("Horizontal", 3))
sketch14.addConstraint(Sketcher.Constraint("Vertical", 4))
sketch14.addConstraint(Sketcher.Constraint("Horizontal", 5))
sketch14.addConstraint(Sketcher.Constraint("Vertical", 6))
sketch14.addConstraint(Sketcher.Constraint("Horizontal", 7))
sketch14.addConstraint(Sketcher.Constraint("PointOnObject", 0, 2, -1))
sketch14.addConstraint(Sketcher.Constraint("Vertical", 3, 2, 4, 2))
sketch14.addConstraint(Sketcher.Constraint("Vertical", 2, 2, 5, 2))
sketch14.addConstraint(Sketcher.Constraint("Equal", 2, 4))
sketch14.addConstraint(Sketcher.Constraint("DistanceX", 1, 1, 1, 2, Q("8.5 mm")))
sketch14.addConstraint(Sketcher.Constraint("DistanceY", 0, 1, 0, 2, Q("0.4 mm")))
sketch14.addConstraint(Sketcher.Constraint("DistanceY", 6, 2, -1, 1, Q("24 mm")))
sketch14.addConstraint(Sketcher.Constraint("DistanceX", 0, 2, -1, 1, Q("19.554775 mm")))
pocket8 = body.newObject("PartDesign::Pocket", "Pocket007")
pocket8.Profile = sketch14
pocket8.Length = 0.4
pocket8.Reversed = True

doc.recompute()
